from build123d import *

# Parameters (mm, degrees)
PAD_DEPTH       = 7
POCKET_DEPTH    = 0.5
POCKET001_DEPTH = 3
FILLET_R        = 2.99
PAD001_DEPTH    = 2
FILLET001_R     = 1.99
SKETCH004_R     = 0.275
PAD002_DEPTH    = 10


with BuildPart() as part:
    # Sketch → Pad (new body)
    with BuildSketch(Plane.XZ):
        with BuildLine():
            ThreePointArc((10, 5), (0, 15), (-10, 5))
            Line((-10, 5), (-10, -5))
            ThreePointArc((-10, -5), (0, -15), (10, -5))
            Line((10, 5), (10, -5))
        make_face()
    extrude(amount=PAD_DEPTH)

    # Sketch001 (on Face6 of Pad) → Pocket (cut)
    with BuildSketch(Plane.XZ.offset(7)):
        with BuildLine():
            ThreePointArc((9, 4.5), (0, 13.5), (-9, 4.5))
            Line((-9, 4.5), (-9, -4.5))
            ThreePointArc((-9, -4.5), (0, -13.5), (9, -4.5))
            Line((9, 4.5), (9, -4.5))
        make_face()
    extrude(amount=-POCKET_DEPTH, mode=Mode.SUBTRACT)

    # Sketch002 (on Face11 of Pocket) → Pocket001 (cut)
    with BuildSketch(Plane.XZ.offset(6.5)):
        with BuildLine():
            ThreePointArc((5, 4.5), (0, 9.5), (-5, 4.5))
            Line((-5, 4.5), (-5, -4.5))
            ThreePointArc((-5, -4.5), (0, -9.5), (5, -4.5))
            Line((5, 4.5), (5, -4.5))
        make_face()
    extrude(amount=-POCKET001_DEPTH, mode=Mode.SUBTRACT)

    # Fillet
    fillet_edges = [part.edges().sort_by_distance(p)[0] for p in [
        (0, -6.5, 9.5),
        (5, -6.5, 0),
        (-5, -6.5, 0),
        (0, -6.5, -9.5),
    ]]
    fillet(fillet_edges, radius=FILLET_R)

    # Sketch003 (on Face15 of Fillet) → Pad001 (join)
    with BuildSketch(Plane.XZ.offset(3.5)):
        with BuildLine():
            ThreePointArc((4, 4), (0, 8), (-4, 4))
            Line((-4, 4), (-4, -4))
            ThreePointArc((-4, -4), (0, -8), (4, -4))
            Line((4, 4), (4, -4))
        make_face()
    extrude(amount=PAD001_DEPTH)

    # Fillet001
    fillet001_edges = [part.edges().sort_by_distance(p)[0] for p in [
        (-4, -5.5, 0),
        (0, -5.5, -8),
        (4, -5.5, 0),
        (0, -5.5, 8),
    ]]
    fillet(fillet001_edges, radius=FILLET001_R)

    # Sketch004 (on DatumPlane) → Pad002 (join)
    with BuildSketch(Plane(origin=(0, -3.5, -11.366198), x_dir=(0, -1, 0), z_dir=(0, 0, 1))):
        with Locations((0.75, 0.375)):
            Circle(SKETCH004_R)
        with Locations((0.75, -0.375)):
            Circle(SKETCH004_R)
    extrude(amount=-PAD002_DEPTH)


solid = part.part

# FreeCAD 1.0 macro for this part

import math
import FreeCAD as App
import Part
import Sketcher

V = App.Vector
Q = App.Units.Quantity


def edges_at(feature, points):
    """Names of the edges that pass closest to the given points."""
    edges = feature.Shape.Edges
    near = lambda p: min(range(len(edges)), key=lambda i: edges[i].distToShape(Part.Vertex(*p))[0])
    return sorted({f"Edge{near(p) + 1}" for p in points})

doc = App.newDocument("Part")
body = doc.addObject("PartDesign::Body", "Body")

# Sketch on XZ plane
sketch1 = doc.addObject("Sketcher::SketchObject", "Sketch")
body.addObject(sketch1)
sketch1.AttachmentSupport = (doc.XZ_Plane, [""])
sketch1.MapMode = "FlatFace"
sketch1.addGeometry(Part.ArcOfCircle(Part.Circle(V(0, 5, 0), V(0, 0, 1), 10), math.radians(0), math.radians(180)), False)
sketch1.addGeometry(Part.LineSegment(V(-10, 5, 0), V(-10, -5, 0)), False)
sketch1.addGeometry(Part.ArcOfCircle(Part.Circle(V(0, -5, 0), V(0, 0, 1), 10), math.radians(180), math.radians(360)), False)
sketch1.addGeometry(Part.LineSegment(V(10, -5, 0), V(10, 5, 0)), False)
sketch1.addConstraint(Sketcher.Constraint("Tangent", 0, 2, 1, 1))
sketch1.addConstraint(Sketcher.Constraint("Tangent", 1, 2, 2, 1))
sketch1.addConstraint(Sketcher.Constraint("Tangent", 2, 2, 3, 1))
sketch1.addConstraint(Sketcher.Constraint("Tangent", 3, 2, 0, 1))
sketch1.addConstraint(Sketcher.Constraint("Vertical", 1))
sketch1.addConstraint(Sketcher.Constraint("Vertical", 3))
sketch1.addConstraint(Sketcher.Constraint("Symmetric", 0, 3, 2, 3, -1, 1))
sketch1.addConstraint(Sketcher.Constraint("Radius", 0, Q("10 mm")))
sketch1.addConstraint(Sketcher.Constraint("DistanceY", 1, 2, 1, 1, Q("10 mm")))
pad1 = doc.addObject("PartDesign::Pad", "Pad")
body.addObject(pad1)
pad1.Profile = sketch1
pad1.Length = 7

# Sketch on XZ plane
sketch2 = doc.addObject("Sketcher::SketchObject", "Sketch001")
body.addObject(sketch2)
sketch2.AttachmentSupport = (doc.XZ_Plane, [""])
sketch2.MapMode = "FlatFace"
sketch2.AttachmentOffset = App.Placement(V(0, 0, 7), App.Rotation())
sketch2.addGeometry(Part.ArcOfCircle(Part.Circle(V(0, 4.5, 0), V(0, 0, 1), 9), math.radians(0), math.radians(180)), False)
sketch2.addGeometry(Part.LineSegment(V(-9, 4.5, 0), V(-9, -4.5, 0)), False)
sketch2.addGeometry(Part.ArcOfCircle(Part.Circle(V(0, -4.5, 0), V(0, 0, 1), 9), math.radians(180), math.radians(360)), False)
sketch2.addGeometry(Part.LineSegment(V(9, -4.5, 0), V(9, 4.5, 0)), False)
sketch2.addConstraint(Sketcher.Constraint("Tangent", 0, 2, 1, 1))
sketch2.addConstraint(Sketcher.Constraint("Tangent", 1, 2, 2, 1))
sketch2.addConstraint(Sketcher.Constraint("Tangent", 2, 2, 3, 1))
sketch2.addConstraint(Sketcher.Constraint("Tangent", 3, 2, 0, 1))
sketch2.addConstraint(Sketcher.Constraint("Vertical", 1))
sketch2.addConstraint(Sketcher.Constraint("Vertical", 3))
sketch2.addConstraint(Sketcher.Constraint("Symmetric", 0, 3, 2, 3, -1, 1))
sketch2.addConstraint(Sketcher.Constraint("Radius", 0, Q("9 mm")))
sketch2.addConstraint(Sketcher.Constraint("DistanceY", 1, 2, 1, 1, Q("9 mm")))
pocket1 = doc.addObject("PartDesign::Pocket", "Pocket")
body.addObject(pocket1)
pocket1.Profile = sketch2
pocket1.Length = 0.5

# Sketch on XZ plane
sketch3 = doc.addObject("Sketcher::SketchObject", "Sketch002")
body.addObject(sketch3)
sketch3.AttachmentSupport = (doc.XZ_Plane, [""])
sketch3.MapMode = "FlatFace"
sketch3.AttachmentOffset = App.Placement(V(0, 0, 6.5), App.Rotation())
sketch3.addGeometry(Part.ArcOfCircle(Part.Circle(V(0, 4.5, 0), V(0, 0, 1), 5), math.radians(0), math.radians(180)), False)
sketch3.addGeometry(Part.LineSegment(V(-5, 4.5, 0), V(-5, -4.5, 0)), False)
sketch3.addGeometry(Part.ArcOfCircle(Part.Circle(V(0, -4.5, 0), V(0, 0, 1), 5), math.radians(180), math.radians(360)), False)
sketch3.addGeometry(Part.LineSegment(V(5, -4.5, 0), V(5, 4.5, 0)), False)
sketch3.addConstraint(Sketcher.Constraint("Tangent", 0, 2, 1, 1))
sketch3.addConstraint(Sketcher.Constraint("Tangent", 1, 2, 2, 1))
sketch3.addConstraint(Sketcher.Constraint("Tangent", 2, 2, 3, 1))
sketch3.addConstraint(Sketcher.Constraint("Tangent", 3, 2, 0, 1))
sketch3.addConstraint(Sketcher.Constraint("Vertical", 1))
sketch3.addConstraint(Sketcher.Constraint("Vertical", 3))
sketch3.addConstraint(Sketcher.Constraint("Symmetric", 0, 3, 2, 3, -1, 1))
sketch3.addConstraint(Sketcher.Constraint("Radius", 0, Q("5 mm")))
sketch3.addConstraint(Sketcher.Constraint("DistanceY", 1, 2, 1, 1, Q("9 mm")))
pocket2 = doc.addObject("PartDesign::Pocket", "Pocket001")
body.addObject(pocket2)
pocket2.Profile = sketch3
pocket2.Length = 3
doc.recompute()

fillet = doc.addObject("PartDesign::Fillet", "Fillet")
body.addObject(fillet)
fillet.Base = (pocket2, edges_at(pocket2, [
    (0, -6.5, 9.5),
    (5, -6.5, 0),
    (-5, -6.5, 0),
    (0, -6.5, -9.5),
]))
fillet.Radius = 2.99

# Sketch on XZ plane
sketch4 = doc.addObject("Sketcher::SketchObject", "Sketch003")
body.addObject(sketch4)
sketch4.AttachmentSupport = (doc.XZ_Plane, [""])
sketch4.MapMode = "FlatFace"
sketch4.AttachmentOffset = App.Placement(V(0, 0, 3.5), App.Rotation())
sketch4.addGeometry(Part.ArcOfCircle(Part.Circle(V(0, 4, 0), V(0, 0, 1), 4), math.radians(0), math.radians(180)), False)
sketch4.addGeometry(Part.LineSegment(V(-4, 4, 0), V(-4, -4, 0)), False)
sketch4.addGeometry(Part.ArcOfCircle(Part.Circle(V(0, -4, 0), V(0, 0, 1), 4), math.radians(180), math.radians(360)), False)
sketch4.addGeometry(Part.LineSegment(V(4, -4, 0), V(4, 4, 0)), False)
sketch4.addConstraint(Sketcher.Constraint("Tangent", 0, 2, 1, 1))
sketch4.addConstraint(Sketcher.Constraint("Tangent", 1, 2, 2, 1))
sketch4.addConstraint(Sketcher.Constraint("Tangent", 2, 2, 3, 1))
sketch4.addConstraint(Sketcher.Constraint("Tangent", 3, 2, 0, 1))
sketch4.addConstraint(Sketcher.Constraint("Vertical", 1))
sketch4.addConstraint(Sketcher.Constraint("Vertical", 3))
sketch4.addConstraint(Sketcher.Constraint("Symmetric", 0, 3, 2, 3, -1, 1))
sketch4.addConstraint(Sketcher.Constraint("Radius", 0, Q("4 mm")))
sketch4.addConstraint(Sketcher.Constraint("DistanceY", 1, 2, 1, 1, Q("8 mm")))
pad2 = doc.addObject("PartDesign::Pad", "Pad001")
body.addObject(pad2)
pad2.Profile = sketch4
pad2.Length = 2
doc.recompute()

fillet2 = doc.addObject("PartDesign::Fillet", "Fillet001")
body.addObject(fillet2)
fillet2.Base = (pad2, edges_at(pad2, [
    (-4, -5.5, 0),
    (0, -5.5, -8),
    (4, -5.5, 0),
    (0, -5.5, 8),
]))
fillet2.Radius = 1.99

# Sketch on XY plane
sketch5 = doc.addObject("Sketcher::SketchObject", "Sketch004")
body.addObject(sketch5)
sketch5.AttachmentSupport = (doc.XY_Plane, [""])
sketch5.MapMode = "FlatFace"
sketch5.AttachmentOffset = App.Placement(V(0, 0, -11.366198), App.Rotation())
sketch5.addGeometry(Part.Circle(V(0.375, -4.25, 0), V(0, 0, 1), 0.275), False)
sketch5.addGeometry(Part.Circle(V(-0.375, -4.25, 0), V(0, 0, 1), 0.275), False)
sketch5.addConstraint(Sketcher.Constraint("Equal", 0, 1))
sketch5.addConstraint(Sketcher.Constraint("Symmetric", 0, 3, 1, 3, -2))
sketch5.addConstraint(Sketcher.Constraint("Diameter", 0, Q("0.55 mm")))
sketch5.addConstraint(Sketcher.Constraint("DistanceY", 0, 3, -1, 1, Q("4.25 mm")))
sketch5.addConstraint(Sketcher.Constraint("DistanceX", 1, 3, 0, 3, Q("0.75 mm")))
pad3 = doc.addObject("PartDesign::Pad", "Pad002")
body.addObject(pad3)
pad3.Profile = sketch5
pad3.Length = 10
pad3.Reversed = True

doc.recompute()
